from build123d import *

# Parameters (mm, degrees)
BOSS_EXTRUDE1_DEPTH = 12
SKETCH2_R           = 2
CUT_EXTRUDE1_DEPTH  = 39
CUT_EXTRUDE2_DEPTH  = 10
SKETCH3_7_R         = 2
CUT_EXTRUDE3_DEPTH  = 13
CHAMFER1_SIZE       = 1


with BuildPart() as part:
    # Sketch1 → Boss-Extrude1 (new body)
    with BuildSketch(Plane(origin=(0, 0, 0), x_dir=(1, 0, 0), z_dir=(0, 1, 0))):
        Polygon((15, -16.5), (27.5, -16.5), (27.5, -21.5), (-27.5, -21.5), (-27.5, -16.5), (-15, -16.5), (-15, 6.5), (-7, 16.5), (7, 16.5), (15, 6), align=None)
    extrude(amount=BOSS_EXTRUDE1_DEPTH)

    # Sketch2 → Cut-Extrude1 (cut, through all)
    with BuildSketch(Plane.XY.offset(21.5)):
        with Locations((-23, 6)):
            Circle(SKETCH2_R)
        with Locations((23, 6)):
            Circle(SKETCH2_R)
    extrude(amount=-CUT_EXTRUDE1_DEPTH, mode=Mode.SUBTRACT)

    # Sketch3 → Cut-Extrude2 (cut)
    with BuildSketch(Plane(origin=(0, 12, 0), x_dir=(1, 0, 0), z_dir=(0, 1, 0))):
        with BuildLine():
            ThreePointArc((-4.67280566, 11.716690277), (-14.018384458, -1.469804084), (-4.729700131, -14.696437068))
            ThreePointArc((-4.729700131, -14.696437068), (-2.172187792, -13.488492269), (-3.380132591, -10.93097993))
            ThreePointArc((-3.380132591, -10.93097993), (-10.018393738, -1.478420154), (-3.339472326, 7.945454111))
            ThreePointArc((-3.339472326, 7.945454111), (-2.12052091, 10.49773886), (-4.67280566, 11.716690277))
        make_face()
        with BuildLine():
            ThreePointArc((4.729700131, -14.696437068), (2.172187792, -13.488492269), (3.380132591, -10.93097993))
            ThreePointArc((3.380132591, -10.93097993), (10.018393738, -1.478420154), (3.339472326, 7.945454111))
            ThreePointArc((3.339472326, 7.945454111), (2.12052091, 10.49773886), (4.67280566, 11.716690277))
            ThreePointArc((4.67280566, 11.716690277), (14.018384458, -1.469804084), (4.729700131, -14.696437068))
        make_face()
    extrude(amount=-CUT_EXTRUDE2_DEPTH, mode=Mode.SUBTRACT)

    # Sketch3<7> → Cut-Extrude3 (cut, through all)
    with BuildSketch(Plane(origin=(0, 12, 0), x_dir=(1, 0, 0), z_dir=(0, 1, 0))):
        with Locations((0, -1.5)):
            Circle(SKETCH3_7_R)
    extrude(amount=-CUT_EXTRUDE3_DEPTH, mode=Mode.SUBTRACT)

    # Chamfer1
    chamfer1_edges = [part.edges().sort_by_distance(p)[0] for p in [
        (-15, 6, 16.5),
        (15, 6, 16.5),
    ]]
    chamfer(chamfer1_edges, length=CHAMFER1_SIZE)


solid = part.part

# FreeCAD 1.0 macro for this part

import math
import FreeCAD as App
import Part
import Sketcher

V = App.Vector
Q = App.Units.Quantity


def edges_at(feature, points):
    """Names of the edges that pass closest to the given points."""
    edges = feature.Shape.Edges
    near = lambda p: min(range(len(edges)), key=lambda i: edges[i].distToShape(Part.Vertex(*p))[0])
    return sorted({f"Edge{near(p) + 1}" for p in points})


def add_polygon(sketch, points):
    """Adds a closed chain of lines whose ends are joined by coincident constraints."""
    first, n = sketch.GeometryCount, len(points)
    for a, b in zip(points, points[1:] + points[:1]):
        sketch.addGeometry(Part.LineSegment(App.Vector(*a, 0), App.Vector(*b, 0)), False)
    for i in range(n):
        sketch.addConstraint(Sketcher.Constraint("Coincident", first + i, 2, first + (i + 1) % n, 1))

doc = App.newDocument("Part")
body = doc.addObject("PartDesign::Body", "Body")

# Sketch on XZ plane
sketch1 = doc.addObject("Sketcher::SketchObject", "Sketch")
body.addObject(sketch1)
sketch1.AttachmentSupport = (doc.XZ_Plane, [""])
sketch1.MapMode = "FlatFace"
add_polygon(sketch1, [(27.5, 16.5), (15, 16.5), (15, -6), (7, -16.5), (-7, -16.5), (-15, -6.5), (-15, 16.5), (-27.5, 16.5), (-27.5, 21.5), (27.5, 21.5)])  # lines 0-9
sketch1.addConstraint([
    Sketcher.Constraint("Horizontal", 0),
    Sketcher.Constraint("Vertical", 1),
    Sketcher.Constraint("Horizontal", 3),
    Sketcher.Constraint("Vertical", 5),
    Sketcher.Constraint("Horizontal", 6),
    Sketcher.Constraint("Vertical", 7),
    Sketcher.Constraint("Horizontal", 8),
    Sketcher.Constraint("Vertical", 9),
    Sketcher.Constraint("Symmetric", 0, 2, 5, 2, -2),
    Sketcher.Constraint("Equal", 0, 6),
    Sketcher.Constraint("DistanceX", 3, 2, 3, 1, Q("14 mm")),
    Sketcher.Constraint("DistanceX", 8, 1, 8, 2, Q("55 mm")),
    Sketcher.Constraint("DistanceY", 5, 1, 5, 2, Q("23 mm")),
    Sketcher.Constraint("DistanceY", 7, 1, 7, 2, Q("5 mm")),
    Sketcher.Constraint("DistanceX", 0, 2, 0, 1, Q("12.5 mm")),
    Sketcher.Constraint("DistanceY", 1, 2, 1, 1, Q("22.5 mm")),
    Sketcher.Constraint("DistanceY", 1, 2, -1, 1, Q("6 mm")),
    Sketcher.Constraint("DistanceX", -1, 1, 2, 2, Q("7 mm")),
    Sketcher.Constraint("DistanceY", 2, 2, 0, 2, Q("33 mm")),
])
pad1 = doc.addObject("PartDesign::Pad", "Pad")
body.addObject(pad1)
pad1.Profile = sketch1
pad1.Length = 12
pad1.Reversed = True

# Sketch on XY plane
sketch2 = doc.addObject("Sketcher::SketchObject", "Sketch001")
body.addObject(sketch2)
sketch2.AttachmentSupport = (doc.XY_Plane, [""])
sketch2.MapMode = "FlatFace"
sketch2.AttachmentOffset = App.Placement(V(0, 0, 21.5), App.Rotation())
sketch2.addGeometry([
    Part.Circle(V(-23, 6, 0), V(0, 0, 1), 2),
    Part.Circle(V(23, 6, 0), V(0, 0, 1), 2),
], False)
sketch2.addConstraint([
    Sketcher.Constraint("Equal", 0, 1),
    Sketcher.Constraint("Symmetric", 0, 3, 1, 3, -2),
    Sketcher.Constraint("Diameter", 0, Q("4 mm")),
    Sketcher.Constraint("DistanceX", 0, 3, -1, 1, Q("23 mm")),
    Sketcher.Constraint("DistanceY", -1, 1, 0, 3, Q("6 mm")),
])
pocket1 = doc.addObject("PartDesign::Pocket", "Pocket")
body.addObject(pocket1)
pocket1.Profile = sketch2
pocket1.Type = "ThroughAll"

# Sketch on XZ plane
sketch3 = doc.addObject("Sketcher::SketchObject", "Sketch002")
body.addObject(sketch3)
sketch3.AttachmentSupport = (doc.XZ_Plane, [""])
sketch3.MapMode = "FlatFace"
sketch3.AttachmentOffset = App.Placement(V(0, 0, -12), App.Rotation())
sketch3.addGeometry([
    Part.ArcOfCircle(Part.Circle(V(0, 1.5, 0), V(0, 0, 1), 14.018417), math.radians(109.718053), math.radians(250.528779)),  # 0
    Part.ArcOfCircle(Part.Circle(V(-4.054916, 12.813708, 0), V(0, 0, 1), 2), math.radians(-70.281947), math.radians(109.718053)),  # 1
    Part.ArcOfCircle(Part.Circle(V(0, 1.5, 0), V(0, 0, 1), 10.018417), math.radians(109.718053), math.radians(250.528779)),  # 2
    Part.ArcOfCircle(Part.Circle(V(-4.006139, -9.831072, 0), V(0, 0, 1), 2), math.radians(-109.471221), math.radians(70.528779)),  # 3
    Part.ArcOfCircle(Part.Circle(V(4.054916, 12.813708, 0), V(0, 0, 1), 2), math.radians(70.281947), math.radians(250.281947)),  # 4
    Part.ArcOfCircle(Part.Circle(V(0, 1.5, 0), V(0, 0, 1), 14.018417), math.radians(-70.528779), math.radians(70.281947)),  # 5
    Part.ArcOfCircle(Part.Circle(V(4.006139, -9.831072, 0), V(0, 0, 1), 2), math.radians(109.471221), math.radians(289.471221)),  # 6
    Part.ArcOfCircle(Part.Circle(V(0, 1.5, 0), V(0, 0, 1), 10.018417), math.radians(-70.528779), math.radians(70.281947)),  # 7
], False)
sketch3.addConstraint([
    Sketcher.Constraint("Tangent", 0, 1, 1, 2),
    Sketcher.Constraint("Tangent", 1, 1, 2, 1),
    Sketcher.Constraint("Tangent", 2, 2, 3, 2),
    Sketcher.Constraint("Tangent", 3, 1, 0, 2),
    Sketcher.Constraint("Tangent", 4, 1, 5, 2),
    Sketcher.Constraint("Tangent", 5, 1, 6, 2),
    Sketcher.Constraint("Tangent", 6, 1, 7, 1),
    Sketcher.Constraint("Tangent", 7, 2, 4, 2),
    Sketcher.Constraint("Coincident", 2, 3, 0, 3),
    Sketcher.Constraint("Coincident", 5, 3, 0, 3),
    Sketcher.Constraint("Coincident", 7, 3, 0, 3),
    Sketcher.Constraint("Equal", 3, 4),
    Sketcher.Constraint("Equal", 0, 5),
    Sketcher.Constraint("Symmetric", 1, 3, 4, 3, -2),
    Sketcher.Constraint("Horizontal", 3, 3, 6, 3),
    Sketcher.Constraint("Radius", 1, Q("2 mm")),
    Sketcher.Constraint("DistanceY", -1, 1, 0, 3, Q("1.5 mm")),
    Sketcher.Constraint("Radius", 0, Q("14.018417 mm")),
    Sketcher.Constraint("DistanceX", 0, 1, -1, 1, Q("4.7297 mm")),
    Sketcher.Constraint("DistanceX", 3, 3, -1, 1, Q("4.006139 mm")),
])
pocket2 = doc.addObject("PartDesign::Pocket", "Pocket001")
body.addObject(pocket2)
pocket2.Profile = sketch3
pocket2.Length = 10
pocket2.Reversed = True

# Sketch on XZ plane
sketch4 = doc.addObject("Sketcher::SketchObject", "Sketch003")
body.addObject(sketch4)
sketch4.AttachmentSupport = (doc.XZ_Plane, [""])
sketch4.MapMode = "FlatFace"
sketch4.AttachmentOffset = App.Placement(V(0, 0, -12), App.Rotation())
sketch4.addGeometry(Part.Circle(V(0, 1.5, 0), V(0, 0, 1), 2), False)
sketch4.addConstraint([
    Sketcher.Constraint("PointOnObject", 0, 3, -2),
    Sketcher.Constraint("Diameter", 0, Q("4 mm")),
    Sketcher.Constraint("DistanceY", -1, 1, 0, 3, Q("1.5 mm")),
])
pocket3 = doc.addObject("PartDesign::Pocket", "Pocket002")
body.addObject(pocket3)
pocket3.Profile = sketch4
pocket3.Type = "ThroughAll"
pocket3.Reversed = True
doc.recompute()

chamfer = doc.addObject("PartDesign::Chamfer", "Chamfer")
body.addObject(chamfer)
chamfer.Base = (pocket3, edges_at(pocket3, [(-15, 6, 16.5), (15, 6, 16.5)]))
chamfer.Size = 1

doc.recompute()
